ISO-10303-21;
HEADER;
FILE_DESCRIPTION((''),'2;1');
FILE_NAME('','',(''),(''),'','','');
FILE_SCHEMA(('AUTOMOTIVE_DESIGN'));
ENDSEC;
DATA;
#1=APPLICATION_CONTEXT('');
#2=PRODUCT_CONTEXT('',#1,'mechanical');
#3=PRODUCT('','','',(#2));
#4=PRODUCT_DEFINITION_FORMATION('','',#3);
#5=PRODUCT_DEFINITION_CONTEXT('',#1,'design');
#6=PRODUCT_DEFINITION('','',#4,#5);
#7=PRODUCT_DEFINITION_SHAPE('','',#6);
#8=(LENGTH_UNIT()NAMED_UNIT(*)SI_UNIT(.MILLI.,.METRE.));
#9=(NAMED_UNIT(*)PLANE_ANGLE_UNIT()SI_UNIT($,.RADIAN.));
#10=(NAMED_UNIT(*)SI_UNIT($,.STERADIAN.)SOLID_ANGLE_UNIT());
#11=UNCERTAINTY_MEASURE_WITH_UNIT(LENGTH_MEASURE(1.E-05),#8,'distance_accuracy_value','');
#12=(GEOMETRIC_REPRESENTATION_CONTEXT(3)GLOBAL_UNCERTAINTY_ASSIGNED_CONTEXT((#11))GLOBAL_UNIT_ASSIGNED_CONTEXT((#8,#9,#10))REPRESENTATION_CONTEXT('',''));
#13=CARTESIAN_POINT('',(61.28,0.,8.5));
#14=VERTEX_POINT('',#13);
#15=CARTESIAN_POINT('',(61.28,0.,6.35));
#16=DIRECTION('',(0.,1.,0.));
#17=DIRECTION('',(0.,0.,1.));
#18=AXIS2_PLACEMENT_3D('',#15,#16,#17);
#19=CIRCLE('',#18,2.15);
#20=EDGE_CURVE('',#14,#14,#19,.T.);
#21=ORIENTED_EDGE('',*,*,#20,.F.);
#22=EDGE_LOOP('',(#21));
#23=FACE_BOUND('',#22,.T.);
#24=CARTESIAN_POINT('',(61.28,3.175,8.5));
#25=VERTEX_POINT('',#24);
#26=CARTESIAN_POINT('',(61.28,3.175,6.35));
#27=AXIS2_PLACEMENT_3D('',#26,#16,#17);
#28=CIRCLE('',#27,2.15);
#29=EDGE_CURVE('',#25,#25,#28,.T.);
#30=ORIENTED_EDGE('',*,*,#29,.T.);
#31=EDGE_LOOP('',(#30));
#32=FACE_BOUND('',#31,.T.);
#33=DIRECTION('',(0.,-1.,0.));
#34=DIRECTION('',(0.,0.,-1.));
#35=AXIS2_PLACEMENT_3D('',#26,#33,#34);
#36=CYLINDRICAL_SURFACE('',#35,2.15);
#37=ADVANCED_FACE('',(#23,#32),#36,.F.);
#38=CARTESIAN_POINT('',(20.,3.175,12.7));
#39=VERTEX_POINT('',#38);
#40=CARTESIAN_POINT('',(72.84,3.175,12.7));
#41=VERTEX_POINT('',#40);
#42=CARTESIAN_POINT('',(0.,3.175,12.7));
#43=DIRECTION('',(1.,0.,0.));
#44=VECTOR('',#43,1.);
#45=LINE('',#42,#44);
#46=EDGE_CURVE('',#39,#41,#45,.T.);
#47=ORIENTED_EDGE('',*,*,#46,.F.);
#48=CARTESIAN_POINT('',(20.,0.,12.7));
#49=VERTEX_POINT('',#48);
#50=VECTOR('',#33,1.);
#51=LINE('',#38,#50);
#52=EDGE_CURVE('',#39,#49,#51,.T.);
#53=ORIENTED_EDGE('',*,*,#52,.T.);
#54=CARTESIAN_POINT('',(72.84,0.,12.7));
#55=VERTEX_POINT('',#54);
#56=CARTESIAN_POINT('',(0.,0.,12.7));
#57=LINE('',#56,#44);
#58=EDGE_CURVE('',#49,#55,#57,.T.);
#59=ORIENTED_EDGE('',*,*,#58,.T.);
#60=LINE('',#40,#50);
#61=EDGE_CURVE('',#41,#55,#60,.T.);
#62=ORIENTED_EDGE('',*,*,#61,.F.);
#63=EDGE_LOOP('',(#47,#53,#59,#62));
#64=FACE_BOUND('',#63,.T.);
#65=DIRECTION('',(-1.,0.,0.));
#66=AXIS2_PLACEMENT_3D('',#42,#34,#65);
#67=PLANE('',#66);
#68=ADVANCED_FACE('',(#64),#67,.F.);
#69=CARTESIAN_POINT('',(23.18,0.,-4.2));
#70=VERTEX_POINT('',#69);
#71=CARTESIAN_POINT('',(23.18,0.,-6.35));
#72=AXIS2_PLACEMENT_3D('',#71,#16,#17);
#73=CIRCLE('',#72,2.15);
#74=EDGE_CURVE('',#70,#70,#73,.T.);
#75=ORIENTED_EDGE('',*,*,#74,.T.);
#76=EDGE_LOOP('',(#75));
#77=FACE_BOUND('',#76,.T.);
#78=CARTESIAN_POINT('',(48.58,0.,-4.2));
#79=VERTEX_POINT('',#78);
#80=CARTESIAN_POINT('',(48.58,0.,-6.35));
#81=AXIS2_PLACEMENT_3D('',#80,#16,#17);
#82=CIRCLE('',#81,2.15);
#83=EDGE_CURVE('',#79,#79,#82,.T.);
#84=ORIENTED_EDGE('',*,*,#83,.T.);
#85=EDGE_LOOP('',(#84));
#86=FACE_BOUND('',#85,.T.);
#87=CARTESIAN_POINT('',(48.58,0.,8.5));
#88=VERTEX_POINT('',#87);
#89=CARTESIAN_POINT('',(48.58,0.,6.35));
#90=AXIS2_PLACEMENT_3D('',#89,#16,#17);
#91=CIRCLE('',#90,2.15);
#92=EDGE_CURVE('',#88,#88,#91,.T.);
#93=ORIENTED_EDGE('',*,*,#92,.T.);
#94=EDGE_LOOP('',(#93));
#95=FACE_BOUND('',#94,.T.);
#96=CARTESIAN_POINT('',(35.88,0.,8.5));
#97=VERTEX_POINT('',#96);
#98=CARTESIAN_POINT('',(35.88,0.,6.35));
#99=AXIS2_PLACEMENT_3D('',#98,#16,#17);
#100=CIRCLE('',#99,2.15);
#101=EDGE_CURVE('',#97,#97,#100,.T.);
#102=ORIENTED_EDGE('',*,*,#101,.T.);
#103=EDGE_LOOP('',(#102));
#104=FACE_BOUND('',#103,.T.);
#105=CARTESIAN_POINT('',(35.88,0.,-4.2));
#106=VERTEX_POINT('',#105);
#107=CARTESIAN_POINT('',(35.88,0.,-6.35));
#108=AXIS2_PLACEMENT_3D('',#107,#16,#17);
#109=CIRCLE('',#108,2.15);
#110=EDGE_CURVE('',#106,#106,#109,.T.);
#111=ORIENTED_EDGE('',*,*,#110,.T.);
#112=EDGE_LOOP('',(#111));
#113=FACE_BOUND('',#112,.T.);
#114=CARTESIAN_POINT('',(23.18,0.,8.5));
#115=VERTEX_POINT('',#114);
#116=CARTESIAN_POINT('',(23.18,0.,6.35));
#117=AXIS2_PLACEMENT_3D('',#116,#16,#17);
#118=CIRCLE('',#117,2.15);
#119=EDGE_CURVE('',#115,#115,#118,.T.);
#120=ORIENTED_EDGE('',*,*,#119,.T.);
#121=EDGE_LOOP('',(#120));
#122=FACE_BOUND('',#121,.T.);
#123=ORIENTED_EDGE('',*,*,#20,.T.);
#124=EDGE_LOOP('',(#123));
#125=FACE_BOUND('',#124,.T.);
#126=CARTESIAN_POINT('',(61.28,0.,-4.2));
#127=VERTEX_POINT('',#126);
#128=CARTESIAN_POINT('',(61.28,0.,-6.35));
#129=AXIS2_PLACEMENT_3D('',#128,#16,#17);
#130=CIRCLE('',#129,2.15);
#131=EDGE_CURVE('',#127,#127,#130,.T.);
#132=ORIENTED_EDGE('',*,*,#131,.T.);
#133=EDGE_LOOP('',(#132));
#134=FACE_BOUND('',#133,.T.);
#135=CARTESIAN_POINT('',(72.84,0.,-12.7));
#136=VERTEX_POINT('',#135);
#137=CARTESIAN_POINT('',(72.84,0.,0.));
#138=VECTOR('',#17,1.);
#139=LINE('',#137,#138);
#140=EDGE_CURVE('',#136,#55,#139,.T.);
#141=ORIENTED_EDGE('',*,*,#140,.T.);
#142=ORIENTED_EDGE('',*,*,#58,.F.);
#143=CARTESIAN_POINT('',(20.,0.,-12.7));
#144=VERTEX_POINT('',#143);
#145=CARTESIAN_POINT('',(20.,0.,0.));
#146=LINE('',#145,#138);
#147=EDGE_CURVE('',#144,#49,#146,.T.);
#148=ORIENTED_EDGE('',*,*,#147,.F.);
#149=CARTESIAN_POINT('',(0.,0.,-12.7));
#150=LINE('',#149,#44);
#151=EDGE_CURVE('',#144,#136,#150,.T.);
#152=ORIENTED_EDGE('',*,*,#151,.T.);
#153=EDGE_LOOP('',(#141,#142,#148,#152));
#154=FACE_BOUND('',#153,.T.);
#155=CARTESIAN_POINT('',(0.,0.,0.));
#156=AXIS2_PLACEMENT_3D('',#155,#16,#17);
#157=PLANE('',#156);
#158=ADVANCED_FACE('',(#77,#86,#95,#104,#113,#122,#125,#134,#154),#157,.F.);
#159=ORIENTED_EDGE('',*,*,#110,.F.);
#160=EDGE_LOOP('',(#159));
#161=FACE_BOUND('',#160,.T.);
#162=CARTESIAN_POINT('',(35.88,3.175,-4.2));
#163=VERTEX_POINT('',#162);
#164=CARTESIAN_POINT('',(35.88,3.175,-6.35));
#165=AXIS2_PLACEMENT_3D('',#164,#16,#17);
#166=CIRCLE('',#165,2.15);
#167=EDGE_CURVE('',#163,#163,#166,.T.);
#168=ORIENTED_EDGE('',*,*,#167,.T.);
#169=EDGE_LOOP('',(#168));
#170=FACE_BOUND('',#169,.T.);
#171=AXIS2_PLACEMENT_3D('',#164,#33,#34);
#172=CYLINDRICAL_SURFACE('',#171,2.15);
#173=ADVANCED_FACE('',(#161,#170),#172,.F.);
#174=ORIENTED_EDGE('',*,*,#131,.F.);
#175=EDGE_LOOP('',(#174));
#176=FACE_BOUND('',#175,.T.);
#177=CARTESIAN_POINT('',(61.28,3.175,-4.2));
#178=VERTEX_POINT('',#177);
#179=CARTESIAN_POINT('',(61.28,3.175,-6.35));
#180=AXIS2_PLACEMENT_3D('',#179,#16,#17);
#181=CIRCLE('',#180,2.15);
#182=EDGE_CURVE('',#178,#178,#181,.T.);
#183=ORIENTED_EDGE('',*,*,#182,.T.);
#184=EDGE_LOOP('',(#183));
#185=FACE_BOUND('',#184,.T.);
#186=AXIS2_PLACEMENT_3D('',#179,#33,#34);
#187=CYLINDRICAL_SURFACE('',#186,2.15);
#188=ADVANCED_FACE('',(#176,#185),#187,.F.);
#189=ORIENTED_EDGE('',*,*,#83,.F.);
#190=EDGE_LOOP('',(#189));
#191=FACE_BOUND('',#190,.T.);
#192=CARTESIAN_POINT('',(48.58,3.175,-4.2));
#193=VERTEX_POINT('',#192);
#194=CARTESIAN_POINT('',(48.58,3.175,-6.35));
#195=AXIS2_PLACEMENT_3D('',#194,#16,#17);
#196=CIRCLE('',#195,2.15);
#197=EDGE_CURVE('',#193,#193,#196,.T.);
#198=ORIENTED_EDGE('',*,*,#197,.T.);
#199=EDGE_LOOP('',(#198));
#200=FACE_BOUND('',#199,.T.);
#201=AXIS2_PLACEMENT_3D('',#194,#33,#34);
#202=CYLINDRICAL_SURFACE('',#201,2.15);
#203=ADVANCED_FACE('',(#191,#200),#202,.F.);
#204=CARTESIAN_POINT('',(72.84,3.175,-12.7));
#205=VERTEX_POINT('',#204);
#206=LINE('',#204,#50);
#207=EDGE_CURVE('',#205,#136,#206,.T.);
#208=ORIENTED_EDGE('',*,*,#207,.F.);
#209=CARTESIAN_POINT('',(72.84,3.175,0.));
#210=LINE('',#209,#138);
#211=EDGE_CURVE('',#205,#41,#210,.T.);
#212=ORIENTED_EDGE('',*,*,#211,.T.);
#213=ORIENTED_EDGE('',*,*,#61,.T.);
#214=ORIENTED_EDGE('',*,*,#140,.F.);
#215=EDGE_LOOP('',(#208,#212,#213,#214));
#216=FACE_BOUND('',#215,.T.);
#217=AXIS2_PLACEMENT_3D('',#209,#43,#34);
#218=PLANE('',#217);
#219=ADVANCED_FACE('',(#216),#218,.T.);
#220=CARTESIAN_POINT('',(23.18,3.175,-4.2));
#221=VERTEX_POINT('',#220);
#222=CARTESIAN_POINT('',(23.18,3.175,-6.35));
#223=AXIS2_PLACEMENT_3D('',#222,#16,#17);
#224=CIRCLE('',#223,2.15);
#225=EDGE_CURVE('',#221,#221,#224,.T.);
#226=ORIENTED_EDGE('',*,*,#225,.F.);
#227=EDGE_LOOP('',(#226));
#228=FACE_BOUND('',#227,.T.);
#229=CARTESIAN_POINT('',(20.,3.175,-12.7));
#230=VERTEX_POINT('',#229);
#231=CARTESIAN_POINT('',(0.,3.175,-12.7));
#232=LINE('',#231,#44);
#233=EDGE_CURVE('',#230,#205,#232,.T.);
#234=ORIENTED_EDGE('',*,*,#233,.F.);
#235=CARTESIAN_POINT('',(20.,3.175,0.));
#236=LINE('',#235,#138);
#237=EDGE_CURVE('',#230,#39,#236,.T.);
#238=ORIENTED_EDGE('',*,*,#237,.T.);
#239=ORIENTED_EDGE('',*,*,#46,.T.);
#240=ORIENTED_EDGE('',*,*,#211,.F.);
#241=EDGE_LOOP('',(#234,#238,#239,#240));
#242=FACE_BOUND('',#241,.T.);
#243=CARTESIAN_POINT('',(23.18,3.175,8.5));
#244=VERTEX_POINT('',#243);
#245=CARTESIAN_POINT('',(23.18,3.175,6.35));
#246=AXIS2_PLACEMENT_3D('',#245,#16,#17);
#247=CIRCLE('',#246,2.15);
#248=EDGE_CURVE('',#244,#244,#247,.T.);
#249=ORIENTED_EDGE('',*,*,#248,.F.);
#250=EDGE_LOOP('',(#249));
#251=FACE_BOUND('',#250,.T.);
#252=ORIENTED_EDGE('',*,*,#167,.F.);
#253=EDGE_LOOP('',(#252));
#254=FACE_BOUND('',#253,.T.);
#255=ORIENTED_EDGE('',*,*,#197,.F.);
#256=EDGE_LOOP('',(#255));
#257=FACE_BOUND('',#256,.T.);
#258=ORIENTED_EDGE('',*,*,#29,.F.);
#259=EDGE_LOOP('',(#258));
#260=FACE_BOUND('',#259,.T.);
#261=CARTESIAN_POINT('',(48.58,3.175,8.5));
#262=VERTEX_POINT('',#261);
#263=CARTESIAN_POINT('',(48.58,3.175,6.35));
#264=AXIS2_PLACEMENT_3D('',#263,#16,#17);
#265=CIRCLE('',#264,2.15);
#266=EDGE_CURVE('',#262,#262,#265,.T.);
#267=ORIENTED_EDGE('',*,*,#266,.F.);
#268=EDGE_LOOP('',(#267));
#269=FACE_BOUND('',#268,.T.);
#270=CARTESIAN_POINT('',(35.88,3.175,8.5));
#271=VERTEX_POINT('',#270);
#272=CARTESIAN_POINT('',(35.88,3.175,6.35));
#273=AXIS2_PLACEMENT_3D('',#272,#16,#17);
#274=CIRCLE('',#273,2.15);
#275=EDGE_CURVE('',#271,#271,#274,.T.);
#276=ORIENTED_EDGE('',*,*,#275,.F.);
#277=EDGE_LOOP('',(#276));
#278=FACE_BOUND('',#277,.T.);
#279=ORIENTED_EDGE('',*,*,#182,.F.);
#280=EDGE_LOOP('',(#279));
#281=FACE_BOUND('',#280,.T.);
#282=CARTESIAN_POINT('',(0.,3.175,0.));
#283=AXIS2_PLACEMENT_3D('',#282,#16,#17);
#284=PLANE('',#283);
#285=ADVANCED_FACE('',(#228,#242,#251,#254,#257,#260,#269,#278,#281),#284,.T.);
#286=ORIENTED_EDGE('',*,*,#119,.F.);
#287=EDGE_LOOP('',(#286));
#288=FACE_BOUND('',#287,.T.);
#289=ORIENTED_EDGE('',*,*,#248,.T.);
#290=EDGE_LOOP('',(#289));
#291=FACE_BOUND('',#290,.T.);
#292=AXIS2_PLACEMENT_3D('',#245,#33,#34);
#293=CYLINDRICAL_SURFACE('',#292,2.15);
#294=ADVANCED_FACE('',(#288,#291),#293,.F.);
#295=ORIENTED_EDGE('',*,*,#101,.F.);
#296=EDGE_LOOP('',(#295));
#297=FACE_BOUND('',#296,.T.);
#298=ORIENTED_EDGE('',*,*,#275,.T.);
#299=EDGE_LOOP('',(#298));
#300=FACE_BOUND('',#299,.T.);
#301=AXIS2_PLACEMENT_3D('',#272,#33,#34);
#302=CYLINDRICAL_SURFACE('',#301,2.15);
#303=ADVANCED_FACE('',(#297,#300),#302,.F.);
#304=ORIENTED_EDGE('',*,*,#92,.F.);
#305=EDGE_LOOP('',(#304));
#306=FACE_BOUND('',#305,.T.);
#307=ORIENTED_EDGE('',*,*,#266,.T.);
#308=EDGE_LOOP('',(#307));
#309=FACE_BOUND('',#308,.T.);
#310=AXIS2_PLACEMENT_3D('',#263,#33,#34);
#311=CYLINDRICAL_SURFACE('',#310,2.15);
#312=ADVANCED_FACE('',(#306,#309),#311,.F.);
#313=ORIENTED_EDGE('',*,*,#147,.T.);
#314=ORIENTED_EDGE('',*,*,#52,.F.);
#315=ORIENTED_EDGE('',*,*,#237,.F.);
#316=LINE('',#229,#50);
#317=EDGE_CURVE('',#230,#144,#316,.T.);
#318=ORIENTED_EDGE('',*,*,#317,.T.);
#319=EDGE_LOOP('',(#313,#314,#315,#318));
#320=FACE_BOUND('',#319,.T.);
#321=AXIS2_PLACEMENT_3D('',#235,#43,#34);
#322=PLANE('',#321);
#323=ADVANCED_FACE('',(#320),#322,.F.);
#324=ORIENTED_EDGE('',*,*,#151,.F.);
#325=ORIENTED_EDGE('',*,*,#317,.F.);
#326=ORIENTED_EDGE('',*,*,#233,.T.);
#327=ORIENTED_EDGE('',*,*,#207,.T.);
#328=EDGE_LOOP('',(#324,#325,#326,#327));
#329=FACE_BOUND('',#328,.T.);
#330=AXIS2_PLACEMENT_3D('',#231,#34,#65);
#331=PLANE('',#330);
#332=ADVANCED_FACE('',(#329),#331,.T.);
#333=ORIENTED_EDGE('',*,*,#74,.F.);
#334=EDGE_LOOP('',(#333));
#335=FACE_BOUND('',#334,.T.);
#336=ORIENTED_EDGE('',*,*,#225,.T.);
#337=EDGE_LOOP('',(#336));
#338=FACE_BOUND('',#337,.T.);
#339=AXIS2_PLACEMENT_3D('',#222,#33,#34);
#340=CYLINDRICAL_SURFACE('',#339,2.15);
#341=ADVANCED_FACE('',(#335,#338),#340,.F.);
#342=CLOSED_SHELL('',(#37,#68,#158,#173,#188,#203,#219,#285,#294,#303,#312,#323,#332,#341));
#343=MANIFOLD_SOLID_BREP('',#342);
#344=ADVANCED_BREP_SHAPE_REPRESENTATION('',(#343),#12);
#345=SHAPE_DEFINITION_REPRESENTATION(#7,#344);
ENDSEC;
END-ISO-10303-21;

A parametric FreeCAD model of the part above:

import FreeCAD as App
import Part
import Sketcher
Q = App.Units.Quantity


def add_polygon(sketch, points):
    """Adds a closed chain of lines whose ends are joined by coincident constraints."""
    first, n = sketch.GeometryCount, len(points)
    for a, b in zip(points, points[1:] + points[:1]):
        sketch.addGeometry(Part.LineSegment(App.Vector(*a, 0), App.Vector(*b, 0)), False)
    for i in range(n):
        sketch.addConstraint(Sketcher.Constraint("Coincident", first + i, 2, first + (i + 1) % n, 1))

doc = App.newDocument("Part")
params = doc.addObject("Spreadsheet::Sheet", "Params")
for row, (alias, value) in enumerate([
    ("sketch1_height", "1 in"),
    ("pad1_length", "0.125 in"),
], start=1):
    params.set(f"A{row}", alias)
    params.set(f"B{row}", "=" + value)
    params.setAlias(f"B{row}", alias)

body = doc.addObject("PartDesign::Body", "Body")

sketch1 = body.newObject("Sketcher::SketchObject", "Sketch")
sketch1.AttachmentSupport = (doc.getObject("XZ_Plane"), [""])
sketch1.MapMode = "FlatFace"
add_polygon(sketch1, [(20, -12.7), (20, 12.7), (72.8, 12.7), (72.8, -12.7)])
sketch1.addGeometry(Part.Circle(App.Vector(23.2, 6.3, 0), App.Vector(0, 0, 1), 2.1), False)
sketch1.addGeometry(Part.Circle(App.Vector(35.9, 6.3, 0), App.Vector(0, 0, 1), 2.1), False)
sketch1.addGeometry(Part.Circle(App.Vector(48.6, 6.3, 0), App.Vector(0, 0, 1), 2.1), False)
sketch1.addGeometry(Part.Circle(App.Vector(61.3, 6.3, 0), App.Vector(0, 0, 1), 2.1), False)
sketch1.addGeometry(Part.Circle(App.Vector(23.2, -6.3, 0), App.Vector(0, 0, 1), 2.1), False)
sketch1.addGeometry(Part.Circle(App.Vector(35.9, -6.3, 0), App.Vector(0, 0, 1), 2.1), False)
sketch1.addGeometry(Part.Circle(App.Vector(48.6, -6.3, 0), App.Vector(0, 0, 1), 2.1), False)
sketch1.addGeometry(Part.Circle(App.Vector(61.3, -6.3, 0), App.Vector(0, 0, 1), 2.1), False)
sketch1.addConstraint(Sketcher.Constraint("Vertical", 0))
sketch1.addConstraint(Sketcher.Constraint("Horizontal", 1))
sketch1.addConstraint(Sketcher.Constraint("Vertical", 2))
sketch1.addConstraint(Sketcher.Constraint("Horizontal", 3))
sketch1.addConstraint(Sketcher.Constraint("Equal", 4, 5))
sketch1.addConstraint(Sketcher.Constraint("Equal", 5, 6))
sketch1.addConstraint(Sketcher.Constraint("Equal", 6, 7))
sketch1.addConstraint(Sketcher.Constraint("Equal", 7, 8))
sketch1.addConstraint(Sketcher.Constraint("Equal", 8, 9))
sketch1.addConstraint(Sketcher.Constraint("Equal", 9, 10))
sketch1.addConstraint(Sketcher.Constraint("Equal", 10, 11))
sketch1.addConstraint(Sketcher.Constraint("Symmetric", 4, 3, 8, 3, -1))
sketch1.addConstraint(Sketcher.Constraint("Symmetric", 5, 3, 9, 3, -1))
sketch1.addConstraint(Sketcher.Constraint("Symmetric", 6, 3, 10, 3, -1))
sketch1.addConstraint(Sketcher.Constraint("Symmetric", 7, 3, 11, 3, -1))
sketch1.addConstraint(Sketcher.Constraint("Horizontal", 4, 3, 5, 3))
sketch1.addConstraint(Sketcher.Constraint("Horizontal", 5, 3, 6, 3))
sketch1.addConstraint(Sketcher.Constraint("Horizontal", 6, 3, 7, 3))
sketch1.addConstraint(Sketcher.Constraint("DistanceY", 0, 1, 0, 2, Q("1 in")))
sketch1.addConstraint(Sketcher.Constraint("DistanceX", 4, 3, 6, 3, Q("1 in")))
sketch1.addConstraint(Sketcher.Constraint("DistanceX", 5, 3, 7, 3, Q("1 in")))
sketch1.addConstraint(Sketcher.Constraint("DistanceY", -1, 1, 0, 2, Q("0.5 in")))
sketch1.addConstraint(Sketcher.Constraint("DistanceX", 4, 3, 5, 3, Q("0.5 in")))
sketch1.addConstraint(Sketcher.Constraint("DistanceY", 8, 3, 4, 3, Q("0.5 in")))
sketch1.addConstraint(Sketcher.Constraint("Diameter", 4, Q("4.3 mm")))
sketch1.addConstraint(Sketcher.Constraint("DistanceX", 1, 1, 1, 2, Q("52.84 mm")))
sketch1.addConstraint(Sketcher.Constraint("DistanceX", -1, 1, 4, 3, Q("23.18 mm")))
sketch1.addConstraint(Sketcher.Constraint("DistanceX", -1, 1, 0, 2, Q("20 mm")))
sketch1.setExpression("Constraints[22]", "Params.sketch1_height")
pad1 = body.newObject("PartDesign::Pad", "Pad")
pad1.Profile = sketch1
pad1.setExpression("Length", "Params.pad1_length")
pad1.Reversed = True

doc.recompute()
